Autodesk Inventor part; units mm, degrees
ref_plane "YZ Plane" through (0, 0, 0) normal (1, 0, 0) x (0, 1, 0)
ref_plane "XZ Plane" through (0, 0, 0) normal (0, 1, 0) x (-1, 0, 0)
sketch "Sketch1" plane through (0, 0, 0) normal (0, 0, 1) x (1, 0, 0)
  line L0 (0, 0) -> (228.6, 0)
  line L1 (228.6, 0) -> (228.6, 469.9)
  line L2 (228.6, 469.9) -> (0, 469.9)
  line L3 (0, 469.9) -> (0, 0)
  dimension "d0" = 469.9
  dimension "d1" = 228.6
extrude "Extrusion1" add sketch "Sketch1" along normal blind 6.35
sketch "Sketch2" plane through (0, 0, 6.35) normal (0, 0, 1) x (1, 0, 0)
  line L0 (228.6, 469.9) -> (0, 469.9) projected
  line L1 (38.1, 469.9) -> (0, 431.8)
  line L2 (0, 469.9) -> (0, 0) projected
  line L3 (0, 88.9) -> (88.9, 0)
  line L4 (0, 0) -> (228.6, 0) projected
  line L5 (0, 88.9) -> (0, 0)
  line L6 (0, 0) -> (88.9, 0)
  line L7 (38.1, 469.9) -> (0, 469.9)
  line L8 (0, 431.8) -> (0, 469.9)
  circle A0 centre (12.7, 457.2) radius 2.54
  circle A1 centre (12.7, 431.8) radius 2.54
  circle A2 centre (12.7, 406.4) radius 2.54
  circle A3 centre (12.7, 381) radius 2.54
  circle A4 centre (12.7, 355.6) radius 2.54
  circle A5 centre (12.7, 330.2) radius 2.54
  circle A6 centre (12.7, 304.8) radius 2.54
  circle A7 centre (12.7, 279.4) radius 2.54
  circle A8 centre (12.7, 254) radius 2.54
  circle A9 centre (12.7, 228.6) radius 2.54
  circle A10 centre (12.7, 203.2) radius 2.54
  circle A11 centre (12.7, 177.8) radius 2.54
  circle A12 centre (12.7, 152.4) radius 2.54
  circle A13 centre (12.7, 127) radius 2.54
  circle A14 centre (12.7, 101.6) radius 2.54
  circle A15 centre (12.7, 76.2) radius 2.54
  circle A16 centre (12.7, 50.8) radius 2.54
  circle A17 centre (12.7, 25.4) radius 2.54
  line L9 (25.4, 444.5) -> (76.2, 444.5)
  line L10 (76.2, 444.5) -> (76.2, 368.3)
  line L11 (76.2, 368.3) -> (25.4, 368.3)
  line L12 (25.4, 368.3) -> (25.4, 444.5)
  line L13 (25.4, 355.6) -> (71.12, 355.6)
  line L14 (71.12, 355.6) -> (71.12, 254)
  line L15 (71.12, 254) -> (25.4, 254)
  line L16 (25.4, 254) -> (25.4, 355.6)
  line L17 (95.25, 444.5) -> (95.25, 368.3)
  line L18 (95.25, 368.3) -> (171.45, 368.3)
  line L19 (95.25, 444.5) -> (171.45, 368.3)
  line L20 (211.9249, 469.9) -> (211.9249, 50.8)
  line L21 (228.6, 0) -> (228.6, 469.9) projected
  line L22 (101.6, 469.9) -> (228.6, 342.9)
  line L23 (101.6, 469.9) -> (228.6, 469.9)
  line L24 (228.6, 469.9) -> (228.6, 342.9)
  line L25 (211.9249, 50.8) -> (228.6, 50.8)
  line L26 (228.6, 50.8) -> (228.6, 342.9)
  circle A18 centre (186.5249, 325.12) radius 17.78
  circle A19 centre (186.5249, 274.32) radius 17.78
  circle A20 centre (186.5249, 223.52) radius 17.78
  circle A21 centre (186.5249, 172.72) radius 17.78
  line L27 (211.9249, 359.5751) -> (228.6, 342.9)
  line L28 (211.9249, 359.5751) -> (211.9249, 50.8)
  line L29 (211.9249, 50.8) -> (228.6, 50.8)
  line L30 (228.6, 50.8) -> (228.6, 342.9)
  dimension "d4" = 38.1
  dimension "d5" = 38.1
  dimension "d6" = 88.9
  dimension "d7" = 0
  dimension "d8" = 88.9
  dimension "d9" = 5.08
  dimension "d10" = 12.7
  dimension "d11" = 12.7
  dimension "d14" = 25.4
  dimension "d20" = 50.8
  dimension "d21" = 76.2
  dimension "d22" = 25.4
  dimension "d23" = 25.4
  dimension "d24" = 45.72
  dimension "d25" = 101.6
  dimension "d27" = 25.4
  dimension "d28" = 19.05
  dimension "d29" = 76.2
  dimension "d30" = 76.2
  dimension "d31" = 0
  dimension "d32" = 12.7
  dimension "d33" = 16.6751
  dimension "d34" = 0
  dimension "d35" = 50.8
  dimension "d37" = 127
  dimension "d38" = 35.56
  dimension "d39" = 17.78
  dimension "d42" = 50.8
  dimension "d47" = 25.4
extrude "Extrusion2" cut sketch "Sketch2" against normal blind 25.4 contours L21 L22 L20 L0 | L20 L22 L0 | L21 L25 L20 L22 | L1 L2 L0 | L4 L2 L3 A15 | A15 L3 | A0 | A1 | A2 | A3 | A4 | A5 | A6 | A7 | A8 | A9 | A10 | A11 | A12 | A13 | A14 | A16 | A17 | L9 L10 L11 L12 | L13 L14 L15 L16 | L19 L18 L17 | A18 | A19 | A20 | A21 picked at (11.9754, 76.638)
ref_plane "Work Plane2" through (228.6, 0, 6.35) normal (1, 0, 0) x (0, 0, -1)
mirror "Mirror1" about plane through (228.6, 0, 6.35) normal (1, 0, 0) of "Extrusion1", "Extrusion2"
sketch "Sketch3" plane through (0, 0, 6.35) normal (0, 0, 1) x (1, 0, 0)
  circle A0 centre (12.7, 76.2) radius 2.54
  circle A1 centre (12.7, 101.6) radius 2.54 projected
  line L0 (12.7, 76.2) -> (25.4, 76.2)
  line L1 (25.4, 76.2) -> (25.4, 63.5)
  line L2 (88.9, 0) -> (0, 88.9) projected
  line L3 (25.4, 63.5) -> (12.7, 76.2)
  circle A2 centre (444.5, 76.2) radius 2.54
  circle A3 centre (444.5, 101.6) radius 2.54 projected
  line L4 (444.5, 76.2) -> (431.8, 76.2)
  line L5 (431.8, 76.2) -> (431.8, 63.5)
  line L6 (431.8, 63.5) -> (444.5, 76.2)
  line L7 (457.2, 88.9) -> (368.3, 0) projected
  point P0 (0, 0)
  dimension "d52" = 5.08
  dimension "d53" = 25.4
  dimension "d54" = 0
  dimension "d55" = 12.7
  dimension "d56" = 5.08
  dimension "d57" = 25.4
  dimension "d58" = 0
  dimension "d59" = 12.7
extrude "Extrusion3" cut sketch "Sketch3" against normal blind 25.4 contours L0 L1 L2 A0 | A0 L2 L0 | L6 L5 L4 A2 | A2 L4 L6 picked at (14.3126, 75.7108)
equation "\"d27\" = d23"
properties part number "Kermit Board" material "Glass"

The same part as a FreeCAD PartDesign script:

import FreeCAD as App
import Part
import Sketcher

V = App.Vector
Q = App.Units.Quantity

doc = App.newDocument("Part")
body = doc.addObject("PartDesign::Body", "Body")

sketch1 = body.newObject("Sketcher::SketchObject", "Sketch")
sketch1.AttachmentSupport = (doc.getObject("XY_Plane"), [""])
sketch1.MapMode = "FlatFace"
sketch1.addGeometry([
    Part.LineSegment(V(0, 469.9, 0), V(0, 0, 0)),
    Part.LineSegment(V(0, 0, 0), V(228.6, 0, 0)),
    Part.LineSegment(V(228.6, 0, 0), V(228.6, 469.9, 0)),
    Part.LineSegment(V(228.6, 469.9, 0), V(0, 469.9, 0)),
], False)
sketch1.addConstraint([
    Sketcher.Constraint("Coincident", 0, 2, 1, 1),
    Sketcher.Constraint("Coincident", 1, 2, 2, 1),
    Sketcher.Constraint("Coincident", 2, 2, 3, 1),
    Sketcher.Constraint("Coincident", 3, 2, 0, 1),
    Sketcher.Constraint("Vertical", 0),
    Sketcher.Constraint("Horizontal", 1),
    Sketcher.Constraint("Vertical", 2),
    Sketcher.Constraint("Horizontal", 3),
    Sketcher.Constraint("Coincident", 0, 2, -1, 1),
    Sketcher.Constraint("DistanceX", 1, 1, 1, 2, Q("9 in")),
    Sketcher.Constraint("DistanceY", 0, 2, 0, 1, Q("18.5 in")),
])
pad1 = body.newObject("PartDesign::Pad", "Pad")
pad1.Profile = sketch1
pad1.Length = Q("0.25 in")

sketch2 = body.newObject("Sketcher::SketchObject", "Sketch001")
sketch2.AttachmentSupport = (doc.getObject("XY_Plane"), [""])
sketch2.MapMode = "FlatFace"
sketch2.AttachmentOffset = App.Placement(V(0, 0, 0.25 * 25.4), App.Rotation())
sketch2.addGeometry([
    Part.LineSegment(V(228.6, 469.9, 0), V(101.6, 469.9, 0)),
    Part.LineSegment(V(101.6, 469.9, 0), V(211.9249, 359.5751, 0)),
    Part.LineSegment(V(211.9249, 359.5751, 0), V(211.9249, 50.8, 0)),
    Part.LineSegment(V(211.9249, 50.8, 0), V(228.6, 50.8, 0)),
    Part.LineSegment(V(228.6, 50.8, 0), V(228.6, 469.9, 0)),
    Part.LineSegment(V(0, 431.8, 0), V(38.1, 469.9, 0)),
    Part.LineSegment(V(38.1, 469.9, 0), V(0, 469.9, 0)),
    Part.LineSegment(V(0, 469.9, 0), V(0, 431.8, 0)),
    Part.LineSegment(V(0, 0, 0), V(88.9, 0, 0)),
    Part.LineSegment(V(88.9, 0, 0), V(0, 88.9, 0)),
    Part.LineSegment(V(0, 88.9, 0), V(0, 0, 0)),
    Part.Circle(V(12.7, 431.8, 0), V(0, 0, 1), 2.54),
    Part.Circle(V(12.7, 406.4, 0), V(0, 0, 1), 2.54),
    Part.Circle(V(12.7, 381, 0), V(0, 0, 1), 2.54),
    Part.Circle(V(12.7, 355.6, 0), V(0, 0, 1), 2.54),
    Part.Circle(V(12.7, 330.2, 0), V(0, 0, 1), 2.54),
    Part.Circle(V(12.7, 304.8, 0), V(0, 0, 1), 2.54),
    Part.Circle(V(12.7, 279.4, 0), V(0, 0, 1), 2.54),
    Part.Circle(V(12.7, 254, 0), V(0, 0, 1), 2.54),
    Part.Circle(V(12.7, 228.6, 0), V(0, 0, 1), 2.54),
    Part.Circle(V(12.7, 203.2, 0), V(0, 0, 1), 2.54),
    Part.Circle(V(12.7, 177.8, 0), V(0, 0, 1), 2.54),
    Part.Circle(V(12.7, 152.4, 0), V(0, 0, 1), 2.54),
    Part.Circle(V(12.7, 127, 0), V(0, 0, 1), 2.54),
    Part.Circle(V(12.7, 101.6, 0), V(0, 0, 1), 2.54),
    Part.LineSegment(V(76.2, 444.5, 0), V(25.4, 444.5, 0)),
    Part.LineSegment(V(25.4, 444.5, 0), V(25.4, 368.3, 0)),
    Part.LineSegment(V(25.4, 368.3, 0), V(76.2, 368.3, 0)),
    Part.LineSegment(V(76.2, 368.3, 0), V(76.2, 444.5, 0)),
    Part.LineSegment(V(71.12, 355.6, 0), V(25.4, 355.6, 0)),
    Part.LineSegment(V(25.4, 355.6, 0), V(25.4, 254, 0)),
    Part.LineSegment(V(25.4, 254, 0), V(71.12, 254, 0)),
    Part.LineSegment(V(71.12, 254, 0), V(71.12, 355.6, 0)),
    Part.LineSegment(V(171.45, 368.3, 0), V(95.25, 444.5, 0)),
    Part.LineSegment(V(95.25, 444.5, 0), V(95.25, 368.3, 0)),
    Part.LineSegment(V(95.25, 368.3, 0), V(171.45, 368.3, 0)),
    Part.Circle(V(186.5249, 325.12, 0), V(0, 0, 1), 17.78),
    Part.Circle(V(186.5249, 274.32, 0), V(0, 0, 1), 17.78),
    Part.Circle(V(186.5249, 223.52, 0), V(0, 0, 1), 17.78),
    Part.Circle(V(186.5249, 172.72, 0), V(0, 0, 1), 17.78),
], False)
sketch2.addConstraint([
    Sketcher.Constraint("Coincident", 0, 2, 1, 1),
    Sketcher.Constraint("Coincident", 1, 2, 2, 1),
    Sketcher.Constraint("Coincident", 2, 2, 3, 1),
    Sketcher.Constraint("Coincident", 3, 2, 4, 1),
    Sketcher.Constraint("Coincident", 4, 2, 0, 1),
    Sketcher.Constraint("Coincident", 5, 2, 6, 1),
    Sketcher.Constraint("Coincident", 6, 2, 7, 1),
    Sketcher.Constraint("Coincident", 7, 2, 5, 1),
    Sketcher.Constraint("Coincident", 8, 2, 9, 1),
    Sketcher.Constraint("Coincident", 9, 2, 10, 1),
    Sketcher.Constraint("Coincident", 10, 2, 8, 1),
    Sketcher.Constraint("Coincident", 25, 2, 26, 1),
    Sketcher.Constraint("Coincident", 26, 2, 27, 1),
    Sketcher.Constraint("Coincident", 27, 2, 28, 1),
    Sketcher.Constraint("Coincident", 28, 2, 25, 1),
    Sketcher.Constraint("Coincident", 29, 2, 30, 1),
    Sketcher.Constraint("Coincident", 30, 2, 31, 1),
    Sketcher.Constraint("Coincident", 31, 2, 32, 1),
    Sketcher.Constraint("Coincident", 32, 2, 29, 1),
    Sketcher.Constraint("Coincident", 33, 2, 34, 1),
    Sketcher.Constraint("Coincident", 34, 2, 35, 1),
    Sketcher.Constraint("Coincident", 35, 2, 33, 1),
    Sketcher.Constraint("Horizontal", 0),
    Sketcher.Constraint("Vertical", 2),
    Sketcher.Constraint("Horizontal", 3),
    Sketcher.Constraint("Vertical", 4),
    Sketcher.Constraint("Horizontal", 6),
    Sketcher.Constraint("Vertical", 7),
    Sketcher.Constraint("Horizontal", 8),
    Sketcher.Constraint("Vertical", 10),
    Sketcher.Constraint("Horizontal", 25),
    Sketcher.Constraint("Vertical", 26),
    Sketcher.Constraint("Horizontal", 27),
    Sketcher.Constraint("Vertical", 28),
    Sketcher.Constraint("Horizontal", 29),
    Sketcher.Constraint("Vertical", 30),
    Sketcher.Constraint("Horizontal", 31),
    Sketcher.Constraint("Vertical", 32),
    Sketcher.Constraint("Vertical", 34),
    Sketcher.Constraint("Horizontal", 35),
    Sketcher.Constraint("Coincident", 10, 2, -1, 1),
    Sketcher.Constraint("Equal", 11, 12),
    Sketcher.Constraint("Equal", 12, 13),
    Sketcher.Constraint("Equal", 13, 14),
    Sketcher.Constraint("Equal", 14, 15),
    Sketcher.Constraint("Equal", 15, 16),
    Sketcher.Constraint("Equal", 16, 17),
    Sketcher.Constraint("Equal", 17, 18),
    Sketcher.Constraint("Equal", 18, 19),
    Sketcher.Constraint("Equal", 19, 20),
    Sketcher.Constraint("Equal", 20, 21),
    Sketcher.Constraint("Equal", 21, 22),
    Sketcher.Constraint("Equal", 22, 23),
    Sketcher.Constraint("Equal", 23, 24),
    Sketcher.Constraint("Equal", 36, 37),
    Sketcher.Constraint("Equal", 37, 38),
    Sketcher.Constraint("Equal", 38, 39),
    Sketcher.Constraint("PointOnObject", 6, 2, -2),
    Sketcher.Constraint("Perpendicular", 1, 5),
    Sketcher.Constraint("Perpendicular", 5, 9),
    Sketcher.Constraint("Parallel", 9, 33),
    Sketcher.Constraint("Horizontal", 4, 2, 5, 2),
    Sketcher.Constraint("Horizontal", 11, 3, 7, 2),
    Sketcher.Constraint("Horizontal", 14, 3, 29, 2),
    Sketcher.Constraint("Horizontal", 18, 3, 30, 2),
    Sketcher.Constraint("Horizontal", 28, 2, 33, 2),
    Sketcher.Constraint("Horizontal", 27, 2, 34, 2),
    Sketcher.Constraint("Vertical", 11, 3, 12, 3),
    Sketcher.Constraint("Vertical", 12, 3, 13, 3),
    Sketcher.Constraint("Vertical", 13, 3, 14, 3),
    Sketcher.Constraint("Vertical", 14, 3, 15, 3),
    Sketcher.Constraint("Vertical", 15, 3, 16, 3),
    Sketcher.Constraint("Vertical", 16, 3, 17, 3),
    Sketcher.Constraint("Vertical", 17, 3, 18, 3),
    Sketcher.Constraint("Vertical", 18, 3, 19, 3),
    Sketcher.Constraint("Vertical", 19, 3, 20, 3),
    Sketcher.Constraint("Vertical", 20, 3, 21, 3),
    Sketcher.Constraint("Vertical", 21, 3, 22, 3),
    Sketcher.Constraint("Vertical", 22, 3, 23, 3),
    Sketcher.Constraint("Vertical", 23, 3, 24, 3),
    Sketcher.Constraint("Vertical", 36, 3, 37, 3),
    Sketcher.Constraint("Vertical", 37, 3, 38, 3),
    Sketcher.Constraint("Vertical", 38, 3, 39, 3),
    Sketcher.Constraint("Vertical", 26, 2, 29, 2),
    Sketcher.Constraint("Equal", 6, 7),
    Sketcher.Constraint("Diameter", 11, Q("0.2 in")),
    Sketcher.Constraint("Diameter", 36, Q("1.4 in")),
    Sketcher.Constraint("DistanceX", 0, 2, 0, 1, Q("5 in")),
    Sketcher.Constraint("DistanceX", 25, 2, 25, 1, Q("2 in")),
    Sketcher.Constraint("DistanceX", 35, 1, 35, 2, Q("3 in")),
    Sketcher.Constraint("DistanceY", 30, 2, 30, 1, Q("4 in")),
    Sketcher.Constraint("DistanceX", 6, 2, 6, 1, Q("1.5 in")),
    Sketcher.Constraint("DistanceX", 8, 1, 8, 2, Q("3.5 in")),
    Sketcher.Constraint("DistanceX", 29, 2, 29, 1, Q("1.8 in")),
    Sketcher.Constraint("DistanceY", -1, 1, 23, 3, Q("5 in")),
    Sketcher.Constraint("DistanceY", -1, 1, 24, 3, Q("4 in")),
    Sketcher.Constraint("DistanceX", -1, 1, 0, 2, Q("4 in")),
    Sketcher.Constraint("DistanceY", -1, 1, 2, 2, Q("2 in")),
    Sketcher.Constraint("DistanceX", -1, 1, 25, 2, Q("1 in")),
    Sketcher.Constraint("DistanceY", 12, 3, 11, 3, Q("1 in")),
    Sketcher.Constraint("DistanceY", 13, 3, 12, 3, Q("1 in")),
    Sketcher.Constraint("DistanceY", 14, 3, 13, 3, Q("1 in")),
    Sketcher.Constraint("DistanceY", 15, 3, 14, 3, Q("1 in")),
    Sketcher.Constraint("DistanceY", 16, 3, 15, 3, Q("1 in")),
    Sketcher.Constraint("DistanceY", 17, 3, 16, 3, Q("1 in")),
    Sketcher.Constraint("DistanceY", 19, 3, 18, 3, Q("1 in")),
    Sketcher.Constraint("DistanceY", 20, 3, 19, 3, Q("1 in")),
    Sketcher.Constraint("DistanceY", 21, 3, 20, 3, Q("1 in")),
    Sketcher.Constraint("DistanceY", 22, 3, 21, 3, Q("1 in")),
    Sketcher.Constraint("DistanceY", 23, 3, 22, 3, Q("1 in")),
    Sketcher.Constraint("DistanceY", 37, 3, 36, 3, Q("2 in")),
    Sketcher.Constraint("DistanceY", 38, 3, 37, 3, Q("2 in")),
    Sketcher.Constraint("DistanceY", 39, 3, 38, 3, Q("2 in")),
    Sketcher.Constraint("DistanceX", 36, 3, 1, 2, Q("1 in")),
    Sketcher.Constraint("DistanceX", 11, 3, 5, 2, Q("1 in")),
    Sketcher.Constraint("DistanceY", 25, 2, 5, 2, Q("1 in")),
    Sketcher.Constraint("DistanceY", 36, 3, 15, 3, Q("0.2 in")),
    Sketcher.Constraint("DistanceX", 28, 2, 33, 2, Q("0.75 in")),
    Sketcher.Constraint("DistanceX", 3, 1, 3, 2, Q("0.6565 in")),
])
pocket1 = body.newObject("PartDesign::Pocket", "Pocket")
pocket1.Profile = sketch2
pocket1.Length = Q("1 in")
doc.recompute()

datumplane = body.newObject("PartDesign::Plane", "DatumPlane")
datumplane.AttachmentSupport = (doc.getObject("YZ_Plane"), [""])
datumplane.MapMode = "FlatFace"
datumplane.AttachmentOffset = App.Placement(V(0, 0, 9 * 25.4), App.Rotation())
mirrored = body.newObject("PartDesign::Mirrored", "Mirrored")
mirrored.Originals = [pad1, pocket1]
mirrored.MirrorPlane = (datumplane, [""])
body.Tip = mirrored

sketch3 = body.newObject("Sketcher::SketchObject", "Sketch002")
sketch3.AttachmentSupport = (doc.getObject("XY_Plane"), [""])
sketch3.MapMode = "FlatFace"
sketch3.AttachmentOffset = App.Placement(V(0, 0, 0.25 * 25.4), App.Rotation())
sketch3.addGeometry([
    Part.LineSegment(V(25.4, 76.2, 0), V(12.7, 76.2, 0)),
    Part.LineSegment(V(12.7, 76.2, 0), V(25.4, 63.5, 0)),
    Part.LineSegment(V(25.4, 63.5, 0), V(25.4, 76.2, 0)),
    Part.LineSegment(V(431.8, 63.5, 0), V(444.5, 76.2, 0)),
    Part.LineSegment(V(444.5, 76.2, 0), V(431.8, 76.2, 0)),
    Part.LineSegment(V(431.8, 76.2, 0), V(431.8, 63.5, 0)),
], False)
sketch3.addConstraint([
    Sketcher.Constraint("Coincident", 0, 2, 1, 1),
    Sketcher.Constraint("Coincident", 1, 2, 2, 1),
    Sketcher.Constraint("Coincident", 2, 2, 0, 1),
    Sketcher.Constraint("Coincident", 3, 2, 4, 1),
    Sketcher.Constraint("Coincident", 4, 2, 5, 1),
    Sketcher.Constraint("Coincident", 5, 2, 3, 1),
    Sketcher.Constraint("Horizontal", 0),
    Sketcher.Constraint("Vertical", 2),
    Sketcher.Constraint("Horizontal", 4),
    Sketcher.Constraint("Vertical", 5),
    Sketcher.Constraint("Perpendicular", 1, 3),
    Sketcher.Constraint("Horizontal", 2, 2, 3, 2),
    Sketcher.Constraint("Horizontal", 1, 2, 5, 2),
    Sketcher.Constraint("Equal", 0, 4),
    Sketcher.Constraint("DistanceX", 0, 2, 0, 1, Q("0.5 in")),
    Sketcher.Constraint("DistanceX", -1, 1, 1, 2, Q("1 in")),
    Sketcher.Constraint("DistanceY", -1, 1, 0, 2, Q("3 in")),
    Sketcher.Constraint("DistanceX", -1, 1, 4, 2, Q("17 in")),
])
pocket2 = body.newObject("PartDesign::Pocket", "Pocket001")
pocket2.Profile = sketch3
pocket2.Length = Q("1 in")

doc.recompute()
